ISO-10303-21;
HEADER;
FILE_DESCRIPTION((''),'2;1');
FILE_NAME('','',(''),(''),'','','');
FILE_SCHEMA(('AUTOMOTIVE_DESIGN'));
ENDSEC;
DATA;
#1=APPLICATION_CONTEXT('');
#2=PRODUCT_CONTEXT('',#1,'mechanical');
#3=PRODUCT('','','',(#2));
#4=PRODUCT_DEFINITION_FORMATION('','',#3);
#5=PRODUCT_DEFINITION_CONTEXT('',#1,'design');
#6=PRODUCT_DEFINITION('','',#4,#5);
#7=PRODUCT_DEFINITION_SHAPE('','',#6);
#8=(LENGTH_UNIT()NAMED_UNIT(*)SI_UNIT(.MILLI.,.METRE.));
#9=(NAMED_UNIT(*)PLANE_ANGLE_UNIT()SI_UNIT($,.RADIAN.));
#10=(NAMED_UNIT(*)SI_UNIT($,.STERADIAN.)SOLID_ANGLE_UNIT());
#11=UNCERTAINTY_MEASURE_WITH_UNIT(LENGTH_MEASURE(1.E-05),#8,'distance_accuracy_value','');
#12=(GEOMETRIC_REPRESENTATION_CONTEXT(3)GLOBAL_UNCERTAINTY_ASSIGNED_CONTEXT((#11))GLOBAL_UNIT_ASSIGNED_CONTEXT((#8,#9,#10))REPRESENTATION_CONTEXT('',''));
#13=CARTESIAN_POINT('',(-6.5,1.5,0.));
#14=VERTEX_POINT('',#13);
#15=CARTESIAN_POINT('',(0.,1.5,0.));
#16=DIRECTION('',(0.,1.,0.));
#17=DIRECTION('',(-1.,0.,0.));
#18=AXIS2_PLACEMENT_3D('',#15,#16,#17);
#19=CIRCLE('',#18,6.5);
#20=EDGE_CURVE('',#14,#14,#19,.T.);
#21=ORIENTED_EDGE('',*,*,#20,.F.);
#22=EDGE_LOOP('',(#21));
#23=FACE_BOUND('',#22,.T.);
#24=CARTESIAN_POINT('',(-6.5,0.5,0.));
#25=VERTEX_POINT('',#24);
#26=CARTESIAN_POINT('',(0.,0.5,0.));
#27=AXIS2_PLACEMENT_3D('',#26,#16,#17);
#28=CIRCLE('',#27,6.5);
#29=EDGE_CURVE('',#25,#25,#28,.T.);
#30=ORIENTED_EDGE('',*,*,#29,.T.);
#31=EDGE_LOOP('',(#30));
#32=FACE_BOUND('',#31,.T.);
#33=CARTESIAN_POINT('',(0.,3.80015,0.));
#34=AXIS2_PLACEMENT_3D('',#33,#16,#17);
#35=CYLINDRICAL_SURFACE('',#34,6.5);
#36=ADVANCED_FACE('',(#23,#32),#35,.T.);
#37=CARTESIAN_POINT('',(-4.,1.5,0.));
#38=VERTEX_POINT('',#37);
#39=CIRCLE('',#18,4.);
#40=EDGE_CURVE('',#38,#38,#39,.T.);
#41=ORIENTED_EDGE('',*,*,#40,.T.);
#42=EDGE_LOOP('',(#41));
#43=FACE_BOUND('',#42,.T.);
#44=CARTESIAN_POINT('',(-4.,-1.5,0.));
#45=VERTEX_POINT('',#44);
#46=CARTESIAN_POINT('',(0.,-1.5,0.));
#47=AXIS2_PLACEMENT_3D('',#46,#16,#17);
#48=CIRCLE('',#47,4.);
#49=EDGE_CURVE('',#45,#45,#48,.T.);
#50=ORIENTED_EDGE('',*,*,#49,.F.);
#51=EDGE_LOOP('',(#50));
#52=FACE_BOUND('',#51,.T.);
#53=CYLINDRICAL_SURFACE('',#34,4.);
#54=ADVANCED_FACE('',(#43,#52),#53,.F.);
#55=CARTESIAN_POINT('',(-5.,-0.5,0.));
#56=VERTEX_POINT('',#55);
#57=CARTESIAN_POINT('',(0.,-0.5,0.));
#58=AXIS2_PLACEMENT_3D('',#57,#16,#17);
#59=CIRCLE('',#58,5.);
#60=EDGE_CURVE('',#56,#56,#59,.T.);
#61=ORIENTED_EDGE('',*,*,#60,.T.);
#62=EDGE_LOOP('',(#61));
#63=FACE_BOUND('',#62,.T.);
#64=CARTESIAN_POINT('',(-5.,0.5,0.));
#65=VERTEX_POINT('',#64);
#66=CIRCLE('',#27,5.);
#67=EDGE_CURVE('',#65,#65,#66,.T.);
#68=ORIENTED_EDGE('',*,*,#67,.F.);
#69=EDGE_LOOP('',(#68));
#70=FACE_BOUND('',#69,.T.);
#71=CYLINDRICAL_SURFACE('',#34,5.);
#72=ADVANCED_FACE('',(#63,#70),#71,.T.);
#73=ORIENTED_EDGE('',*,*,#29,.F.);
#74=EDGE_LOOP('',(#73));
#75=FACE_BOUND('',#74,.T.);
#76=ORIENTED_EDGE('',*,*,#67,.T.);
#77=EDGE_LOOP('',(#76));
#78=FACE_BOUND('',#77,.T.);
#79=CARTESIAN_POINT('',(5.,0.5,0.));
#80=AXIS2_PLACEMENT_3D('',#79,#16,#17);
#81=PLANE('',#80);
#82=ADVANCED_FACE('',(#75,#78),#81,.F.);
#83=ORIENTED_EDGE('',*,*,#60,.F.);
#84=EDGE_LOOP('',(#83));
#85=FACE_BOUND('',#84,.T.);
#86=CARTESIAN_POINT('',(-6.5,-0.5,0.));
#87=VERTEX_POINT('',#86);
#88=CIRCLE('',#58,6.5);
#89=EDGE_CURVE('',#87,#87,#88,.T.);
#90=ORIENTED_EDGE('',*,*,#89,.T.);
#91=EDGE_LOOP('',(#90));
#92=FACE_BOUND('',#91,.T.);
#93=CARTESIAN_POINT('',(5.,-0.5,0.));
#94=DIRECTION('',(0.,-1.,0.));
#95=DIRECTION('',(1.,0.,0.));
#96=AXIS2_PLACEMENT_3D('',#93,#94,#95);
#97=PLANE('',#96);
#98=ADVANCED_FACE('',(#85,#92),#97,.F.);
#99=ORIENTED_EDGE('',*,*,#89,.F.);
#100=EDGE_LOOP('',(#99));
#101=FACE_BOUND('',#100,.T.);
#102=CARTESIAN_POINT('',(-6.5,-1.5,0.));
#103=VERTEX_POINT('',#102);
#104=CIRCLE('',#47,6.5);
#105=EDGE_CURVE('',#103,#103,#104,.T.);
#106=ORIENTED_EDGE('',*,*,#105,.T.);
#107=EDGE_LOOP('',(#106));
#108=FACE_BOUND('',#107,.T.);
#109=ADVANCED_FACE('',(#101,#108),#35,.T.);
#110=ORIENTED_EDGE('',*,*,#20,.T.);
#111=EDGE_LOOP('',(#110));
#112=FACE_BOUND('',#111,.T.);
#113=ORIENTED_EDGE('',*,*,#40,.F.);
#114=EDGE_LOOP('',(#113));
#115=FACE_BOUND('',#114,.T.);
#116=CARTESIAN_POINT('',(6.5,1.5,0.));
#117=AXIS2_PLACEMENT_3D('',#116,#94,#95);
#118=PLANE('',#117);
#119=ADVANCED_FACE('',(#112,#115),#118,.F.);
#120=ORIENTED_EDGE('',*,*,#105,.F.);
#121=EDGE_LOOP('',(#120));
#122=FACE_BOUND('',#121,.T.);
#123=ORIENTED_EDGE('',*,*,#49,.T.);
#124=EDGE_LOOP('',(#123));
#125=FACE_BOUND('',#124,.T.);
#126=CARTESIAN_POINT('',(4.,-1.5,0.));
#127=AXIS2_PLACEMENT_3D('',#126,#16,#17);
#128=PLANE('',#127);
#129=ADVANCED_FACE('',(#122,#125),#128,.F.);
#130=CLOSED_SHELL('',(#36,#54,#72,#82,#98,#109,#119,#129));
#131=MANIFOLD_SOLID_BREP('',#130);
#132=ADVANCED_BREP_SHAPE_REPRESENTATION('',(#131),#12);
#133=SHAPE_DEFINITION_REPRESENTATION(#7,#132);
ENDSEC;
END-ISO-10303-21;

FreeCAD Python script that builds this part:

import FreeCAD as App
import Part
import Sketcher

V = App.Vector
Q = App.Units.Quantity

doc = App.newDocument("Part")
body = doc.addObject("PartDesign::Body", "Body")

# Sketch on XY plane
sketch1 = body.newObject("Sketcher::SketchObject", "Sketch")
sketch1.AttachmentSupport = (doc.getObject("XY_Plane"), [""])
sketch1.MapMode = "FlatFace"
sketch1.addGeometry(Part.LineSegment(V(5, -0.5, 0), V(5, 0.5, 0)), False)
sketch1.addGeometry(Part.LineSegment(V(5, 0.5, 0), V(6.5, 0.5, 0)), False)
sketch1.addGeometry(Part.LineSegment(V(6.5, 0.5, 0), V(6.5, 1.5, 0)), False)
sketch1.addGeometry(Part.LineSegment(V(6.5, 1.5, 0), V(4, 1.5, 0)), False)
sketch1.addGeometry(Part.LineSegment(V(4, 1.5, 0), V(4, -1.5, 0)), False)
sketch1.addGeometry(Part.LineSegment(V(4, -1.5, 0), V(6.5, -1.5, 0)), False)
sketch1.addGeometry(Part.LineSegment(V(6.5, -1.5, 0), V(6.5, -0.5, 0)), False)
sketch1.addGeometry(Part.LineSegment(V(6.5, -0.5, 0), V(5, -0.5, 0)), False)
sketch1.addConstraint(Sketcher.Constraint("Coincident", 0, 2, 1, 1))
sketch1.addConstraint(Sketcher.Constraint("Coincident", 1, 2, 2, 1))
sketch1.addConstraint(Sketcher.Constraint("Coincident", 2, 2, 3, 1))
sketch1.addConstraint(Sketcher.Constraint("Coincident", 3, 2, 4, 1))
sketch1.addConstraint(Sketcher.Constraint("Coincident", 4, 2, 5, 1))
sketch1.addConstraint(Sketcher.Constraint("Coincident", 5, 2, 6, 1))
sketch1.addConstraint(Sketcher.Constraint("Coincident", 6, 2, 7, 1))
sketch1.addConstraint(Sketcher.Constraint("Coincident", 7, 2, 0, 1))
sketch1.addConstraint(Sketcher.Constraint("Vertical", 0))
sketch1.addConstraint(Sketcher.Constraint("Horizontal", 1))
sketch1.addConstraint(Sketcher.Constraint("Vertical", 2))
sketch1.addConstraint(Sketcher.Constraint("Horizontal", 3))
sketch1.addConstraint(Sketcher.Constraint("Vertical", 4))
sketch1.addConstraint(Sketcher.Constraint("Horizontal", 5))
sketch1.addConstraint(Sketcher.Constraint("Vertical", 6))
sketch1.addConstraint(Sketcher.Constraint("Horizontal", 7))
sketch1.addConstraint(Sketcher.Constraint("Symmetric", 2, 2, 5, 2, -1))
sketch1.addConstraint(Sketcher.Constraint("Equal", 0, 2))
sketch1.addConstraint(Sketcher.Constraint("Equal", 2, 6))
sketch1.addConstraint(Sketcher.Constraint("DistanceY", 0, 1, 0, 2, Q("1 mm")))
sketch1.addConstraint(Sketcher.Constraint("DistanceX", 1, 1, 1, 2, Q("1.5 mm")))
sketch1.addConstraint(Sketcher.Constraint("DistanceX", 3, 2, 3, 1, Q("2.5 mm")))
sketch1.addConstraint(Sketcher.Constraint("DistanceX", -1, 1, 0, 2, Q("5 mm")))
revolution = body.newObject("PartDesign::Revolution", "Revolution")
revolution.Profile = sketch1
revolution.ReferenceAxis = (sketch1, ["V_Axis"])
revolution.Angle = 360

doc.recompute()
